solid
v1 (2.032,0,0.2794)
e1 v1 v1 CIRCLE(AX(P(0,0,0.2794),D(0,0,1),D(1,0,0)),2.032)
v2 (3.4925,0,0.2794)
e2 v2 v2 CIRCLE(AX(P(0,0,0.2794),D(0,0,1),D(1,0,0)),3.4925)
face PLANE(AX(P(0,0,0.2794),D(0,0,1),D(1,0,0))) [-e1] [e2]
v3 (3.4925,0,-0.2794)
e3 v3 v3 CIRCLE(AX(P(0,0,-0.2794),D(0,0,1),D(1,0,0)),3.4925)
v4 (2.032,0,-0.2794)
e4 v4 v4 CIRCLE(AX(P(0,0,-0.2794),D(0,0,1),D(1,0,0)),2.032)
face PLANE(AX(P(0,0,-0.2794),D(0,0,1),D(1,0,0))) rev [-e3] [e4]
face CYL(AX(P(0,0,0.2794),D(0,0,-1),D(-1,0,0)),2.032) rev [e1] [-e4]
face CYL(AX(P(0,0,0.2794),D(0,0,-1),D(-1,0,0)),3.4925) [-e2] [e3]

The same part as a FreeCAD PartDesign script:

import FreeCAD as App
import Part
import Sketcher
from FreeCAD import Vector
Q = App.Units.Quantity

doc = App.newDocument("Part")
params = doc.addObject("Spreadsheet::Sheet", "Params")
for row, (alias, value) in enumerate([
    ("sketch1_diameter", "0.16 in"),
    ("sketch1_diameter2", "0.275 in"),
    ("pad1_length", "0.022 in"),
], start=1):
    params.set(f"A{row}", alias)
    params.set(f"B{row}", "=" + value)
    params.setAlias(f"B{row}", alias)

body = doc.addObject("PartDesign::Body", "Body")

sketch1 = doc.addObject("Sketcher::SketchObject", "Sketch")
body.addObject(sketch1)
sketch1.AttachmentSupport = (doc.XY_Plane, [""])
sketch1.MapMode = "FlatFace"
sketch1.addGeometry([
    Part.Circle(Vector(0, 0, 0), Vector(0, 0, 1), 3.5),
    Part.Circle(Vector(0, 0, 0), Vector(0, 0, 1), 2),
], False)
sketch1.addConstraint([
    Sketcher.Constraint("Coincident", 0, 3, -1, 1),
    Sketcher.Constraint("Coincident", 1, 3, -1, 1),
    Sketcher.Constraint("Diameter", 1, Q("0.16 in")),
    Sketcher.Constraint("Diameter", 0, Q("0.275 in")),
])
sketch1.setExpression("Constraints[2]", "Params.sketch1_diameter")
sketch1.setExpression("Constraints[3]", "Params.sketch1_diameter2")
pad1 = doc.addObject("PartDesign::Pad", "Pad")
body.addObject(pad1)
pad1.Profile = sketch1
pad1.setExpression("Length", "Params.pad1_length")
pad1.Midplane = True

doc.recompute()
